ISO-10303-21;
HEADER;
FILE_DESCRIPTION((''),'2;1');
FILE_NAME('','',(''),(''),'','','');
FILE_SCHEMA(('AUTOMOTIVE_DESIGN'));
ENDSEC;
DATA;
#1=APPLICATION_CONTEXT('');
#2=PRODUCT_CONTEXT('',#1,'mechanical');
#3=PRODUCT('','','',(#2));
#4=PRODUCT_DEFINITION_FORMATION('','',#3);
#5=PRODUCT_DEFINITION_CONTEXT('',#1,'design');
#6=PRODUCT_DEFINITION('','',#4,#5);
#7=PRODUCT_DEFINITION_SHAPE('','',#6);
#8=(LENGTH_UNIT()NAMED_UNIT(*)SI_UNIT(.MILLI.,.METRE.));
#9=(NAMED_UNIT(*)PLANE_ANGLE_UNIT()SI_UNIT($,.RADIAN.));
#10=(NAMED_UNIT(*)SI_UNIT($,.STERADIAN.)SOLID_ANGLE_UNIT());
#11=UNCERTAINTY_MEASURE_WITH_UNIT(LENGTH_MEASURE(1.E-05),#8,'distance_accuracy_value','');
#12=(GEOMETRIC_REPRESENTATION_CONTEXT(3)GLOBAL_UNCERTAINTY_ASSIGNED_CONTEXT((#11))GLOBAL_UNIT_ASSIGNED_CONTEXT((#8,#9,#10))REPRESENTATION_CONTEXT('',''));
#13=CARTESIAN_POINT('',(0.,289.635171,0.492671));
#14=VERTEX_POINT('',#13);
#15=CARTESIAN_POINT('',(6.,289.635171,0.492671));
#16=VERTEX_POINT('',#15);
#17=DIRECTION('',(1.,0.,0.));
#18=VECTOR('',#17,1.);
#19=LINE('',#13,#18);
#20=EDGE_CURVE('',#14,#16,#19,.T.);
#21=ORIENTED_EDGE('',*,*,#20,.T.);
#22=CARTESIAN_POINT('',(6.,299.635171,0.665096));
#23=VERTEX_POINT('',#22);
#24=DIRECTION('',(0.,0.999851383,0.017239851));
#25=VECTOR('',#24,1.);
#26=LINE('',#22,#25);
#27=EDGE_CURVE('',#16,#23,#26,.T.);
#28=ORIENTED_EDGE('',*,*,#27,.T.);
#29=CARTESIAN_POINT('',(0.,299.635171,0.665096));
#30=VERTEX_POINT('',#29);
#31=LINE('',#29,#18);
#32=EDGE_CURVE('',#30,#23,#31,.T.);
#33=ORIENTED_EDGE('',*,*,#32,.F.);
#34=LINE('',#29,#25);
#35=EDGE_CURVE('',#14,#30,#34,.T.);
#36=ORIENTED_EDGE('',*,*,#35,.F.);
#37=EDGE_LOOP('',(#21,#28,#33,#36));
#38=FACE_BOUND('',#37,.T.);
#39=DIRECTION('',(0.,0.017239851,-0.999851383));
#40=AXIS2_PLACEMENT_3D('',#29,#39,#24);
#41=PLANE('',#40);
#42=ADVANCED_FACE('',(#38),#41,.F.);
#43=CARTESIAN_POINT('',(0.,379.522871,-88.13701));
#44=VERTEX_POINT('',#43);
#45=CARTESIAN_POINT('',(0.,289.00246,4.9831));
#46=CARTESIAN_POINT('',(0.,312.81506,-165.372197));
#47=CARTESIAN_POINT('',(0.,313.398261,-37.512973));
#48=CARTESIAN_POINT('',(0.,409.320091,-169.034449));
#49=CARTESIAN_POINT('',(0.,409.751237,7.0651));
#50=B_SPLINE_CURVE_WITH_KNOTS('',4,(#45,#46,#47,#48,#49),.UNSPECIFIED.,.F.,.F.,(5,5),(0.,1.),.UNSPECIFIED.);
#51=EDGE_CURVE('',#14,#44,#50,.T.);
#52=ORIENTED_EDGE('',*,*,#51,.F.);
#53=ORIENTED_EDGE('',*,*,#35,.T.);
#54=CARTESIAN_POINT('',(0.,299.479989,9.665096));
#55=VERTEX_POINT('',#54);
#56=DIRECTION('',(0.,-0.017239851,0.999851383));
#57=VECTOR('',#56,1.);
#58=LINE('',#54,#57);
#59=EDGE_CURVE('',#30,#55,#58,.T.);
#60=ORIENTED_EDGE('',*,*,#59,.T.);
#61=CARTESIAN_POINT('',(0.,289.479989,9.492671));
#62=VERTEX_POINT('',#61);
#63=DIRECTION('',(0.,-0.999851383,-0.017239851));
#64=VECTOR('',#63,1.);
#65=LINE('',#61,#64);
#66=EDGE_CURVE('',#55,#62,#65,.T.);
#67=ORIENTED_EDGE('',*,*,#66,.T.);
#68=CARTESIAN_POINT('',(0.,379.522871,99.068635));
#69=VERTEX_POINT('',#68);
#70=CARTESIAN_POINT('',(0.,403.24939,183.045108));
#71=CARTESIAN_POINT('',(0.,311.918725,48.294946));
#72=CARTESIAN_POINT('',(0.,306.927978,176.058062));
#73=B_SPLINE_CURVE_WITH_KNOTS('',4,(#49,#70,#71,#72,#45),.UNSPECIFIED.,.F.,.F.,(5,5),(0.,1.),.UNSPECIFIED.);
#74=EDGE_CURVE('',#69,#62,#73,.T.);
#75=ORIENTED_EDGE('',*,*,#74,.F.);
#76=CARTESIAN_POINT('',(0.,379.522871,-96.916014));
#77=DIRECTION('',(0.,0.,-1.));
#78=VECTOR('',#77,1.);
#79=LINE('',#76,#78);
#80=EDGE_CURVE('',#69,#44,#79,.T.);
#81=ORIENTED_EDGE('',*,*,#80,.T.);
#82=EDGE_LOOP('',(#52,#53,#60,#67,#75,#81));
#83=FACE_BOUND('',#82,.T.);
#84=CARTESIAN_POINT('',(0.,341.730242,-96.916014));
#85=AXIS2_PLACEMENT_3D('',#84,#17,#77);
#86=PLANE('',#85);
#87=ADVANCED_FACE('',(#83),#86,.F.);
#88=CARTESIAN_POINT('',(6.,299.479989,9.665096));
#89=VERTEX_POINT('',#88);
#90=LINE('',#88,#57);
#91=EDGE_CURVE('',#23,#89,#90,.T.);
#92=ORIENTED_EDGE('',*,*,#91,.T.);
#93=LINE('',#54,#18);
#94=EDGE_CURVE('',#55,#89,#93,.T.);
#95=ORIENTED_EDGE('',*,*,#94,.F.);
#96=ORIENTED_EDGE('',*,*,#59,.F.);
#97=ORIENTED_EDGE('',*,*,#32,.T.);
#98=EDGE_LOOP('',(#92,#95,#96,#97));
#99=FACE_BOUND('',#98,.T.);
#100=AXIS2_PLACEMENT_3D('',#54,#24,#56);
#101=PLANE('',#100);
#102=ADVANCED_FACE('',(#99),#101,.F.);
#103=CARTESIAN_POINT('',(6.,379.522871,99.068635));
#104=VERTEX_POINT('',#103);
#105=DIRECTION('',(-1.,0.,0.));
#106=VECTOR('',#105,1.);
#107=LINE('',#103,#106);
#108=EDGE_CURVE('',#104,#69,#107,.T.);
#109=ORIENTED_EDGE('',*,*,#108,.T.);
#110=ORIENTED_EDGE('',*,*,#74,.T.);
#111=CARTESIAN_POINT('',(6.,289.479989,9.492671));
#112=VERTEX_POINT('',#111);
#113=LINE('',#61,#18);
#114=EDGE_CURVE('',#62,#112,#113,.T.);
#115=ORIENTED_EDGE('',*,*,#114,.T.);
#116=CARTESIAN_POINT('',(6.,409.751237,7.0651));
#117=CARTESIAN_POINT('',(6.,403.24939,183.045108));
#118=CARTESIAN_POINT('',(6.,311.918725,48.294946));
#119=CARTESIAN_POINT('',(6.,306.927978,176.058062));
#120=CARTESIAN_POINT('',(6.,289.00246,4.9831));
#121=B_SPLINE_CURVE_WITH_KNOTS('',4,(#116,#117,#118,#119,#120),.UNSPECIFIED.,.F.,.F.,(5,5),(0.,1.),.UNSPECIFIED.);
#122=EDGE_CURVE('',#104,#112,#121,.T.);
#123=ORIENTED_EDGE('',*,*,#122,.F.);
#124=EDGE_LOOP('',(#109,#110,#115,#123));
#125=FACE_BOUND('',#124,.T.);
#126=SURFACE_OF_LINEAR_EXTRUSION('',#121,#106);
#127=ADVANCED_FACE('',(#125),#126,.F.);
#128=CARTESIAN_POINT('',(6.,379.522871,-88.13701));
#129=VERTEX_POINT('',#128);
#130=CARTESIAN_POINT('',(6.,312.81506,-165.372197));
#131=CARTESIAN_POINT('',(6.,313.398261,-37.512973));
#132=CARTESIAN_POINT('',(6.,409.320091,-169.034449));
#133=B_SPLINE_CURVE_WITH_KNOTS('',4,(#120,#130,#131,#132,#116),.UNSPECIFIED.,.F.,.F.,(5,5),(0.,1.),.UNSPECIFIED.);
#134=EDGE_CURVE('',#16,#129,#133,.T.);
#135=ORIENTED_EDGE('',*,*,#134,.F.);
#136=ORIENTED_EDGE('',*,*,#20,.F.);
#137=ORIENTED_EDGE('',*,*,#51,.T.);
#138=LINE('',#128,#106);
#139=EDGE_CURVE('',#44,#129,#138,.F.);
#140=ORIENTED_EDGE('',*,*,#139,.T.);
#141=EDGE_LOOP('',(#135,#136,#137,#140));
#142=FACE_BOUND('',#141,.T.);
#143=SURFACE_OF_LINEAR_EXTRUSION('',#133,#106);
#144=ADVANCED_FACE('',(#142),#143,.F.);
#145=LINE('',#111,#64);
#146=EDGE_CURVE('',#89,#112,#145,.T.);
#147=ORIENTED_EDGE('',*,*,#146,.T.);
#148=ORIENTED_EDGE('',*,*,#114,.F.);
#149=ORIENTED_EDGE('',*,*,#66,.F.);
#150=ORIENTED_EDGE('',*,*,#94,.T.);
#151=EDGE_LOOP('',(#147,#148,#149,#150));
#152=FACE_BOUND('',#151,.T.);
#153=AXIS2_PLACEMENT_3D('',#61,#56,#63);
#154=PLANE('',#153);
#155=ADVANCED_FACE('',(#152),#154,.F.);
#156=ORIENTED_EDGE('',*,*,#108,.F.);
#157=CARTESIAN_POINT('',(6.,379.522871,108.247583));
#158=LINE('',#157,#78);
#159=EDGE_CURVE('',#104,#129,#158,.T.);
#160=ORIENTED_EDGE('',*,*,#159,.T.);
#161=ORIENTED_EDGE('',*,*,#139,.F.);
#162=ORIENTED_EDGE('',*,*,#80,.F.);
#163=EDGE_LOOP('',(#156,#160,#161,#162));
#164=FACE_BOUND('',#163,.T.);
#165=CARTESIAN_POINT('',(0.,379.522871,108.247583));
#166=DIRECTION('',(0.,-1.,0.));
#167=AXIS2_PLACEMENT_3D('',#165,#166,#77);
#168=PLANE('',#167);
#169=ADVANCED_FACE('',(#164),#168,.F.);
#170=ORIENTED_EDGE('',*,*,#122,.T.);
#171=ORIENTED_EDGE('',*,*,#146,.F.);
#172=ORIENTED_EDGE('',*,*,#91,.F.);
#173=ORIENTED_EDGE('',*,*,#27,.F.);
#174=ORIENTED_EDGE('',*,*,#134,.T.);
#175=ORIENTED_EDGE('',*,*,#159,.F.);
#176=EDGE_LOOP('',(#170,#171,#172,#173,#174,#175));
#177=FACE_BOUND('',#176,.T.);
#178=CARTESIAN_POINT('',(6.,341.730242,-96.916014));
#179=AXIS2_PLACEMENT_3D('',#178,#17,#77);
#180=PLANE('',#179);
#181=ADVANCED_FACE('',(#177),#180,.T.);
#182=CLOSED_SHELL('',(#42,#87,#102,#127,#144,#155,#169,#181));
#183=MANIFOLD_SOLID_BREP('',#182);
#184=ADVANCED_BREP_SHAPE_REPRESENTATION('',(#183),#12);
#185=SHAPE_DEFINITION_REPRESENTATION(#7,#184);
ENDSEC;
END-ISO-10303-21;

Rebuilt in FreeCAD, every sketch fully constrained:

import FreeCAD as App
import Part
import Sketcher
from FreeCAD import Vector


def add_polygon(sketch, points):
    """Adds a closed chain of lines whose ends are joined by coincident constraints."""
    first, n = sketch.GeometryCount, len(points)
    for a, b in zip(points, points[1:] + points[:1]):
        sketch.addGeometry(Part.LineSegment(App.Vector(*a, 0), App.Vector(*b, 0)), False)
    for i in range(n):
        sketch.addConstraint(Sketcher.Constraint("Coincident", first + i, 2, first + (i + 1) % n, 1))

doc = App.newDocument("Part")
body = doc.addObject("PartDesign::Body", "Body")

sketch1 = body.newObject("Sketcher::SketchObject", "Sketch")
sketch1.AttachmentSupport = (doc.getObject("YZ_Plane"), [""])
sketch1.MapMode = "FlatFace"
sketch1.addGeometry([
    Part.BSplineCurve([Vector(409.751237, 7.0651, 0), Vector(403.24939, 183.045108, 0), Vector(311.918725, 48.294946, 0), Vector(306.927978, 176.058062, 0), Vector(289.00246, 4.9831, 0)], [5, 5], [0, 1], False, 4, [1, 1, 1, 1, 1], False),
    Part.BSplineCurve([Vector(409.751237, 7.0651, 0), Vector(409.320091, -169.034449, 0), Vector(313.398261, -37.512973, 0), Vector(312.81506, -165.372197, 0), Vector(289.00246, 4.9831, 0)], [5, 5], [0, 1], False, 4, [1, 1, 1, 1, 1], False),
], False)
sketch1.addConstraint([
    Sketcher.Constraint("Block", 0),
    Sketcher.Constraint("Block", 1),
])
pad1 = body.newObject("PartDesign::Pad", "Pad")
pad1.Profile = sketch1
pad1.Length = 6

sketch2 = body.newObject("Sketcher::SketchObject", "Sketch001")
sketch2.AttachmentSupport = (doc.getObject("YZ_Plane"), [""])
sketch2.MapMode = "FlatFace"
sketch2.AttachmentOffset = App.Placement(Vector(0, 0, 6), App.Rotation())
add_polygon(sketch2, [(299, 10), (289, 9), (270, 12), (274, -2), (290, 0), (300, 1)])
sketch2.addConstraint([
    Sketcher.Constraint("Parallel", 0, 4),
    Sketcher.Constraint("Perpendicular", 4, 5),
    Sketcher.Constraint("Equal", 0, 4),
    Sketcher.Constraint("DistanceY", 3, 2, 0, 2, 9.0),
    Sketcher.Constraint("DistanceX", 3, 2, 4, 2, 10.0),
    Sketcher.Constraint("Distance", 1, 19.431379),
    Sketcher.Constraint("DistanceX", -1, 1, 0, 2, 289.479989),
    Sketcher.Constraint("DistanceY", -1, 1, 0, 2, 9.492671),
    Sketcher.Constraint("DistanceX", -1, 1, 2, 2, 274.106939),
    Sketcher.Constraint("DistanceX", -1, 1, 3, 2, 289.635171),
    Sketcher.Constraint("DistanceY", 2, 2, 1, 2, 13.55631),
    Sketcher.Constraint("DistanceY", 2, 2, 4, 2, 2.425079),
])
pocket1 = body.newObject("PartDesign::Pocket", "Pocket")
pocket1.Profile = sketch2
pocket1.Length = 6

sketch3 = body.newObject("Sketcher::SketchObject", "Sketch002")
sketch3.AttachmentSupport = (doc.getObject("YZ_Plane"), [""])
sketch3.MapMode = "FlatFace"
sketch3.AttachmentOffset = App.Placement(Vector(0, 0, 6), App.Rotation())
add_polygon(sketch3, [(413, 108), (380, 108), (380, -110), (413, -110)])
sketch3.addConstraint([
    Sketcher.Constraint("Horizontal", 0),
    Sketcher.Constraint("Vertical", 1),
    Sketcher.Constraint("Horizontal", 2),
    Sketcher.Constraint("Vertical", 3),
    Sketcher.Constraint("DistanceX", 0, 2, 0, 1, 33.522217),
    Sketcher.Constraint("DistanceY", 1, 2, 1, 1, 218.435094),
    Sketcher.Constraint("DistanceX", -1, 1, 0, 2, 379.522871),
    Sketcher.Constraint("DistanceY", 1, 2, -1, 1, 110.187512),
])
pocket2 = body.newObject("PartDesign::Pocket", "Pocket001")
pocket2.Profile = sketch3
pocket2.Length = 6

doc.recompute()
